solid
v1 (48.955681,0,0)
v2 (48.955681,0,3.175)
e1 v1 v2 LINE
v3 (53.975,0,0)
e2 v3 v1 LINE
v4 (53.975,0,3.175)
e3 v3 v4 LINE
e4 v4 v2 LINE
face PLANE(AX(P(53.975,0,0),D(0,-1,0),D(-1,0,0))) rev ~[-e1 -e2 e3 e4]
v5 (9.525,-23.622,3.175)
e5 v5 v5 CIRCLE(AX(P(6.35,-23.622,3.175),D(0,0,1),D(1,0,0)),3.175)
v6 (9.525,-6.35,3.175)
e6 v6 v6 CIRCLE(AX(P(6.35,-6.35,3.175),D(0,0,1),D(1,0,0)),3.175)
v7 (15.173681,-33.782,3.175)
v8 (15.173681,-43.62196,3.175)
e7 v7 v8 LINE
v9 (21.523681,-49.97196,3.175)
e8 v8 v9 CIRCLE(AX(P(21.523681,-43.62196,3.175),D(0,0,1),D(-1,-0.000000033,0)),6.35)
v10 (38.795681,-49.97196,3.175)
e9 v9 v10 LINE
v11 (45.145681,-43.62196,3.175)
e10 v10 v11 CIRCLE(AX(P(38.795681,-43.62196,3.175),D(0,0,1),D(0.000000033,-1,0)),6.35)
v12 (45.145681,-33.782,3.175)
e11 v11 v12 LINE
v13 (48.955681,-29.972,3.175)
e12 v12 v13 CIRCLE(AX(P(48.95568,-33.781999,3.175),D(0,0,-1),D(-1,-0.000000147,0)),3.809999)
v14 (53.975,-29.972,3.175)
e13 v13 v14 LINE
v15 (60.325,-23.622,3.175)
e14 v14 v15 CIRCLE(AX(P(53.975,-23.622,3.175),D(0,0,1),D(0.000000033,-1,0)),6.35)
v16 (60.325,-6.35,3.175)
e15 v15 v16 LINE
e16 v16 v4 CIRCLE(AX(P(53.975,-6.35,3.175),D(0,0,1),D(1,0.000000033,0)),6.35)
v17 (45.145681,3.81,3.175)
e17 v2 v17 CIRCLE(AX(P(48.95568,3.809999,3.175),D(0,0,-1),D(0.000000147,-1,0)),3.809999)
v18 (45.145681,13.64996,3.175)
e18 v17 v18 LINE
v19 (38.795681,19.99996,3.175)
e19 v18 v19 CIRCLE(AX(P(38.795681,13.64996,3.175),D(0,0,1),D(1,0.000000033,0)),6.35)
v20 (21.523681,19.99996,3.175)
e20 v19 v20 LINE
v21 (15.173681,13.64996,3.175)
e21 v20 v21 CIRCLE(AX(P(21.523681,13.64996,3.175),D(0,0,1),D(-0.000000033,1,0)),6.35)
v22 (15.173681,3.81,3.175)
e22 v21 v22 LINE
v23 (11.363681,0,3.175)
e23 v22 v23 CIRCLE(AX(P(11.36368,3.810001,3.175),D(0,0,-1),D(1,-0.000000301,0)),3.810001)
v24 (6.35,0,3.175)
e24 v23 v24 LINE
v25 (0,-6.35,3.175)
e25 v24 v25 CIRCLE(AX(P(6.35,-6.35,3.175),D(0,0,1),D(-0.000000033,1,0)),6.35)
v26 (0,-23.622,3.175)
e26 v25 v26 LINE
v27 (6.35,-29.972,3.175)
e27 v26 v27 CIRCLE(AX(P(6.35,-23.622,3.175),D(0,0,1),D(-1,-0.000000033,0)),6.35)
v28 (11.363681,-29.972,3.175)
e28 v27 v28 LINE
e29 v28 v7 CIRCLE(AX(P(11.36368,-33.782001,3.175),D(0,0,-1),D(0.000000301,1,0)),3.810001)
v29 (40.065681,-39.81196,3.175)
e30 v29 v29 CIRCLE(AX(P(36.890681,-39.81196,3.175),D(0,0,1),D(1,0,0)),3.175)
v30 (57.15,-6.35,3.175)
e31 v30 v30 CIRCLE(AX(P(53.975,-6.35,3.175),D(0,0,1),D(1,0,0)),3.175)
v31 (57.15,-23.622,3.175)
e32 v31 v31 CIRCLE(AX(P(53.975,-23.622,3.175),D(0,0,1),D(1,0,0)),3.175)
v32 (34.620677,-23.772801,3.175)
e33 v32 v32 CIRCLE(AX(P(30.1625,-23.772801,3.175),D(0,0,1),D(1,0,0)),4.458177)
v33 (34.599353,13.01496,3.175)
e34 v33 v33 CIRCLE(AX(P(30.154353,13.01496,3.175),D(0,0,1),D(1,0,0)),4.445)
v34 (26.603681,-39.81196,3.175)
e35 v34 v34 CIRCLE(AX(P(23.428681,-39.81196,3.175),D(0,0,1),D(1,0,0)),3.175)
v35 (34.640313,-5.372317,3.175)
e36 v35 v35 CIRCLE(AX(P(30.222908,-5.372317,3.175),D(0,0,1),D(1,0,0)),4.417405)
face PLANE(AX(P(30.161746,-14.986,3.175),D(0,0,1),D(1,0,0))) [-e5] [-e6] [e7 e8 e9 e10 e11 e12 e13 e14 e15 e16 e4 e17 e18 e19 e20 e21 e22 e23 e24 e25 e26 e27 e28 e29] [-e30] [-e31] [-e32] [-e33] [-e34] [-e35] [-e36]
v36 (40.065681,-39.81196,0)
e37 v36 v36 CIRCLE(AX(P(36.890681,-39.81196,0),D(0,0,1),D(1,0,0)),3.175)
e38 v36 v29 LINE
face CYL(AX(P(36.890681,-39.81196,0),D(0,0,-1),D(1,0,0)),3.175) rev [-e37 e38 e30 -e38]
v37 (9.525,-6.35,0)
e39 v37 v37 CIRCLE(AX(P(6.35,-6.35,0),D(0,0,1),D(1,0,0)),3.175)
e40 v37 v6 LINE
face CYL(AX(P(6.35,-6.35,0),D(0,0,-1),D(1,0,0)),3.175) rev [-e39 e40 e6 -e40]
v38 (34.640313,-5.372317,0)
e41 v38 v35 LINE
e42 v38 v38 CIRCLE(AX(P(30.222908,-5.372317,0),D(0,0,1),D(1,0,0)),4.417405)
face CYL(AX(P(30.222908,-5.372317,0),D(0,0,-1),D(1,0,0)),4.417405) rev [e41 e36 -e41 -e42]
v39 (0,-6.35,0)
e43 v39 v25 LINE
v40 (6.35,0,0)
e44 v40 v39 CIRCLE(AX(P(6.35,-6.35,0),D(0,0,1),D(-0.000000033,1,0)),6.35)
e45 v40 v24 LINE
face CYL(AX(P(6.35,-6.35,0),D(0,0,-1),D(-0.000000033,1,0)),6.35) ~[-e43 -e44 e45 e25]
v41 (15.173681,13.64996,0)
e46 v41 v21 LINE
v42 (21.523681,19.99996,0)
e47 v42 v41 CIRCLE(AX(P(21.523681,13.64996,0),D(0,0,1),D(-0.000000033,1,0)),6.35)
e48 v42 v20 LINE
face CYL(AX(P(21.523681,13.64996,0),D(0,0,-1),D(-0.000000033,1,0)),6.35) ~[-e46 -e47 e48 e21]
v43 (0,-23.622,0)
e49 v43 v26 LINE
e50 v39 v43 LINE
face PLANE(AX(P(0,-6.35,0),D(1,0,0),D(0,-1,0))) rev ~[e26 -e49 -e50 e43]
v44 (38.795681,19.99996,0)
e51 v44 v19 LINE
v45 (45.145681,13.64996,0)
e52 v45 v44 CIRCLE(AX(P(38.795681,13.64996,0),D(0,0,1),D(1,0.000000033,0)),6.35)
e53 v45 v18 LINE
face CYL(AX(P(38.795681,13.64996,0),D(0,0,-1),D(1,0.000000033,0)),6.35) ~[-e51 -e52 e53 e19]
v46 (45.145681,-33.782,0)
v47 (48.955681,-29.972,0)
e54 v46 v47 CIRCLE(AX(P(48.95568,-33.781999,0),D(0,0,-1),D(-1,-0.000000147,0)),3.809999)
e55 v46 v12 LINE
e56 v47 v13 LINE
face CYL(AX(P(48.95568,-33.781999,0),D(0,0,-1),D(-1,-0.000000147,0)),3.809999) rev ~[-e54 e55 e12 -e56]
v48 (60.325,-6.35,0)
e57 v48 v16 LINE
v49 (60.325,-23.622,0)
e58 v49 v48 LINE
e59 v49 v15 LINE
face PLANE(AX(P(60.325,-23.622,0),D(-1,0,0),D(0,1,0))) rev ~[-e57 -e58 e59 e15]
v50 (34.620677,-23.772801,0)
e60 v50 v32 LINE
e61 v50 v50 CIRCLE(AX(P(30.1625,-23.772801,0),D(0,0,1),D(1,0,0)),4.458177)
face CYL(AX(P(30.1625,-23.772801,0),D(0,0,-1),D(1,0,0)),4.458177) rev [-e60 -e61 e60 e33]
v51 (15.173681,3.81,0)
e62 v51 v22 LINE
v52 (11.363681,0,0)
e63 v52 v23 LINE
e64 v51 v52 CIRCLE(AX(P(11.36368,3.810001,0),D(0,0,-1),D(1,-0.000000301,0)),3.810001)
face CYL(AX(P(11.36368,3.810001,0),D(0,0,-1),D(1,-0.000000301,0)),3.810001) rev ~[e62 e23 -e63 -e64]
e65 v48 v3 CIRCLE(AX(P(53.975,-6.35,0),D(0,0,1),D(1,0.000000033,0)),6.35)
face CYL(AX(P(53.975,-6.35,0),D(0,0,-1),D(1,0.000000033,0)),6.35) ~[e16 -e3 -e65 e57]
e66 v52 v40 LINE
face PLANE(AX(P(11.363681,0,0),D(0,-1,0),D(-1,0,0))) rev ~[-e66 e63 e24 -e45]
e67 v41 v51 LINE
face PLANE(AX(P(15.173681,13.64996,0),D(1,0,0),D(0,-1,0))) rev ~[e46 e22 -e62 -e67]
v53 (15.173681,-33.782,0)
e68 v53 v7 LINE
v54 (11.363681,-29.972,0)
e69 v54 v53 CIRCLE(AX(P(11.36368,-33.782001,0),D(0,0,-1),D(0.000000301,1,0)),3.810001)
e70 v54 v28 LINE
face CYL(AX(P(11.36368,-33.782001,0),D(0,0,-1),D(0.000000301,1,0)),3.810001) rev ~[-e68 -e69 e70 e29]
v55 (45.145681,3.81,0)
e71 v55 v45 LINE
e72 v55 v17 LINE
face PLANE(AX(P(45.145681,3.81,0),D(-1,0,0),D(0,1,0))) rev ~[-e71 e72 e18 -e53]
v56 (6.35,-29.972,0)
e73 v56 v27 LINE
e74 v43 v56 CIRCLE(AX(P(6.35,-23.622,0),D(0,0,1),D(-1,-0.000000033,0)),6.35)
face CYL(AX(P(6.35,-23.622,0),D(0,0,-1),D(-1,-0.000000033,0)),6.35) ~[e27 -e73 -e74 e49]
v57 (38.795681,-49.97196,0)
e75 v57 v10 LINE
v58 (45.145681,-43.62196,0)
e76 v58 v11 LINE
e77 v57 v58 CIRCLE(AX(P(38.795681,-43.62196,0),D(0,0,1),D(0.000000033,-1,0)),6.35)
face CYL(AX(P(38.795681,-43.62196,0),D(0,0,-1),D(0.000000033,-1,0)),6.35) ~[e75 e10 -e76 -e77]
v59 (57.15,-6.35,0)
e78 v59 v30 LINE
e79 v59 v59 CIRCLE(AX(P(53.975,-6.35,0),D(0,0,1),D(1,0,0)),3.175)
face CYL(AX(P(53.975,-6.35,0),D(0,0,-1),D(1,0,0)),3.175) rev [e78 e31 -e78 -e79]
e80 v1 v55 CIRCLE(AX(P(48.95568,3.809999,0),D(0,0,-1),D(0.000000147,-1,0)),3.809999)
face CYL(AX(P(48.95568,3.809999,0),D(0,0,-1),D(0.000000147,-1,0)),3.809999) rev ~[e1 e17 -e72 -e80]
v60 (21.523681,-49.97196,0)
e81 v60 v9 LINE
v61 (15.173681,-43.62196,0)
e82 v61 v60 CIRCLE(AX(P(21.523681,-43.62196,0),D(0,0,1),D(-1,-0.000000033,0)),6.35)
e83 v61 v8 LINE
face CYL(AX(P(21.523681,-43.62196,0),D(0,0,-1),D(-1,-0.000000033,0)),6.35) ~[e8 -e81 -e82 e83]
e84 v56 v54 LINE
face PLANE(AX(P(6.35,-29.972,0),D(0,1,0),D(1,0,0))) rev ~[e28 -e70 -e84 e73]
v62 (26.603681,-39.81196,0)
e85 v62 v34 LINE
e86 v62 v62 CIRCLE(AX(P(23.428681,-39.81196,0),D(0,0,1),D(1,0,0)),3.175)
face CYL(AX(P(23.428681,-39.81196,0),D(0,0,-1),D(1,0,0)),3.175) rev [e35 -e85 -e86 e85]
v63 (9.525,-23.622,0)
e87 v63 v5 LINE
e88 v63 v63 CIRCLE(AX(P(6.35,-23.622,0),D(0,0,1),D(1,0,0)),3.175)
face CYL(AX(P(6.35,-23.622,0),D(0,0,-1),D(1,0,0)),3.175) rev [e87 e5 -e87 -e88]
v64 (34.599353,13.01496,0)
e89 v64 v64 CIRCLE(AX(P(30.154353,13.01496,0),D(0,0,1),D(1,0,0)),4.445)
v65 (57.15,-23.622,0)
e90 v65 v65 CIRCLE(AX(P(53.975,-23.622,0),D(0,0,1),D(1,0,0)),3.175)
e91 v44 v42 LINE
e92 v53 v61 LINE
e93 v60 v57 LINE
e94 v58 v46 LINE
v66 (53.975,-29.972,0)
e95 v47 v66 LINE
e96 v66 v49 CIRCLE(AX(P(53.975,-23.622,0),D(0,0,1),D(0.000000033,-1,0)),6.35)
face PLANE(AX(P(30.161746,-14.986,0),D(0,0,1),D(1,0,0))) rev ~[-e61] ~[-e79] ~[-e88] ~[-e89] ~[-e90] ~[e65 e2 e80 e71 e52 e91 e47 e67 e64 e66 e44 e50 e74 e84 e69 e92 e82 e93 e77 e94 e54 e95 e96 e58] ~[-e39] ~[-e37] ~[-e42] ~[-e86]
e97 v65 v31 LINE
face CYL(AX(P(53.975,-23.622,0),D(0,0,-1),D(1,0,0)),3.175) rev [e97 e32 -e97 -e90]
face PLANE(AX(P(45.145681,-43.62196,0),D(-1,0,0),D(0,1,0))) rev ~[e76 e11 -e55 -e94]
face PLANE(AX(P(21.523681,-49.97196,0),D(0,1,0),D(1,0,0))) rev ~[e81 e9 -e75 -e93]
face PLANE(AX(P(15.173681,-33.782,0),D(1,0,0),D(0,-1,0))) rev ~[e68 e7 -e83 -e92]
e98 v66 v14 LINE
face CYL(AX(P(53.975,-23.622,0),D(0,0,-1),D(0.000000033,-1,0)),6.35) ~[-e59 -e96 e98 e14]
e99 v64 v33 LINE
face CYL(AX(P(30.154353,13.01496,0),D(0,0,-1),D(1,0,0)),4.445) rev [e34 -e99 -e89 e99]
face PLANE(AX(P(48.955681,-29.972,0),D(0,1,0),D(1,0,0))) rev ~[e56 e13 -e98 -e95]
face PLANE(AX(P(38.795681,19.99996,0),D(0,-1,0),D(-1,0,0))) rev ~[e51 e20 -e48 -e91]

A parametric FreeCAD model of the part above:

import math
import FreeCAD as App
import Part
import Sketcher
Q = App.Units.Quantity

doc = App.newDocument("Part")
body = doc.addObject("PartDesign::Body", "Body")

sketch1 = body.newObject("Sketcher::SketchObject", "Sketch")
sketch1.AttachmentSupport = (doc.getObject("XY_Plane"), [""])
sketch1.MapMode = "FlatFace"
sketch1.addGeometry([
    Part.LineSegment(App.Vector(11.4, 0, 0), App.Vector(6.3, 0, 0)),
    Part.ArcOfCircle(Part.Circle(App.Vector(6.4, -6.4, 0), App.Vector(0, 0, 1), 6.4), math.radians(90), math.radians(180)),
    Part.LineSegment(App.Vector(0, -6.3, 0), App.Vector(0, -23.6, 0)),
    Part.ArcOfCircle(Part.Circle(App.Vector(6.4, -23.6, 0), App.Vector(0, 0, 1), 6.4), math.radians(-180), math.radians(-90)),
    Part.LineSegment(App.Vector(6.3, -30, 0), App.Vector(11.4, -30, 0)),
    Part.ArcOfCircle(Part.Circle(App.Vector(11.4, -33.8, 0), App.Vector(0, 0, 1), 3.8), math.radians(0), math.radians(90)),
    Part.LineSegment(App.Vector(15.2, -33.8, 0), App.Vector(15.2, -43.6, 0)),
    Part.ArcOfCircle(Part.Circle(App.Vector(21.5, -43.6, 0), App.Vector(0, 0, 1), 6.4), math.radians(-180), math.radians(-90)),
    Part.LineSegment(App.Vector(21.5, -50, 0), App.Vector(38.8, -50, 0)),
    Part.ArcOfCircle(Part.Circle(App.Vector(38.8, -43.6, 0), App.Vector(0, 0, 1), 6.4), math.radians(-90), math.radians(0)),
    Part.LineSegment(App.Vector(45.1, -43.6, 0), App.Vector(45.1, -33.8, 0)),
    Part.ArcOfCircle(Part.Circle(App.Vector(49, -33.8, 0), App.Vector(0, 0, 1), 3.8), math.radians(90), math.radians(180)),
    Part.LineSegment(App.Vector(49, -30, 0), App.Vector(54, -30, 0)),
    Part.ArcOfCircle(Part.Circle(App.Vector(54, -23.6, 0), App.Vector(0, 0, 1), 6.4), math.radians(-90), math.radians(0)),
    Part.LineSegment(App.Vector(60.3, -23.6, 0), App.Vector(60.3, -6.3, 0)),
    Part.ArcOfCircle(Part.Circle(App.Vector(54, -6.4, 0), App.Vector(0, 0, 1), 6.4), math.radians(0), math.radians(90)),
    Part.LineSegment(App.Vector(54, 0, 0), App.Vector(49, 0, 0)),
    Part.ArcOfCircle(Part.Circle(App.Vector(49, 3.8, 0), App.Vector(0, 0, 1), 3.8), math.radians(180), math.radians(270)),
    Part.LineSegment(App.Vector(45.1, 3.8, 0), App.Vector(45.1, 13.6, 0)),
    Part.ArcOfCircle(Part.Circle(App.Vector(38.8, 13.6, 0), App.Vector(0, 0, 1), 6.4), math.radians(0), math.radians(90)),
    Part.LineSegment(App.Vector(38.8, 20, 0), App.Vector(21.5, 20, 0)),
    Part.ArcOfCircle(Part.Circle(App.Vector(21.5, 13.6, 0), App.Vector(0, 0, 1), 6.4), math.radians(90), math.radians(180)),
    Part.LineSegment(App.Vector(15.2, 13.6, 0), App.Vector(15.2, 3.8, 0)),
    Part.ArcOfCircle(Part.Circle(App.Vector(11.4, 3.8, 0), App.Vector(0, 0, 1), 3.8), math.radians(-90), math.radians(0)),
    Part.Circle(App.Vector(23.4, -39.8, 0), App.Vector(0, 0, 1), 3.2),
    Part.Circle(App.Vector(6.3, -23.6, 0), App.Vector(0, 0, 1), 3.2),
    Part.Circle(App.Vector(36.9, -39.8, 0), App.Vector(0, 0, 1), 3.2),
    Part.Circle(App.Vector(30.2, -23.8, 0), App.Vector(0, 0, 1), 4.5),
    Part.Circle(App.Vector(54, -23.6, 0), App.Vector(0, 0, 1), 3.2),
    Part.Circle(App.Vector(6.3, -6.3, 0), App.Vector(0, 0, 1), 3.2),
    Part.Circle(App.Vector(30.2, 13, 0), App.Vector(0, 0, 1), 4.4),
    Part.Circle(App.Vector(30.2, -5.4, 0), App.Vector(0, 0, 1), 4.4),
    Part.Circle(App.Vector(54, -6.3, 0), App.Vector(0, 0, 1), 3.2),
], False)
sketch1.addConstraint([
    Sketcher.Constraint("Tangent", 0, 2, 1, 1),
    Sketcher.Constraint("Tangent", 1, 2, 2, 1),
    Sketcher.Constraint("Tangent", 2, 2, 3, 1),
    Sketcher.Constraint("Tangent", 3, 2, 4, 1),
    Sketcher.Constraint("Tangent", 4, 2, 5, 2),
    Sketcher.Constraint("Tangent", 5, 1, 6, 1),
    Sketcher.Constraint("Tangent", 6, 2, 7, 1),
    Sketcher.Constraint("Tangent", 7, 2, 8, 1),
    Sketcher.Constraint("Tangent", 8, 2, 9, 1),
    Sketcher.Constraint("Tangent", 9, 2, 10, 1),
    Sketcher.Constraint("Tangent", 10, 2, 11, 2),
    Sketcher.Constraint("Tangent", 11, 1, 12, 1),
    Sketcher.Constraint("Tangent", 12, 2, 13, 1),
    Sketcher.Constraint("Tangent", 13, 2, 14, 1),
    Sketcher.Constraint("Tangent", 14, 2, 15, 1),
    Sketcher.Constraint("Tangent", 15, 2, 16, 1),
    Sketcher.Constraint("Tangent", 16, 2, 17, 2),
    Sketcher.Constraint("Tangent", 17, 1, 18, 1),
    Sketcher.Constraint("Tangent", 18, 2, 19, 1),
    Sketcher.Constraint("Tangent", 19, 2, 20, 1),
    Sketcher.Constraint("Tangent", 20, 2, 21, 1),
    Sketcher.Constraint("Tangent", 21, 2, 22, 1),
    Sketcher.Constraint("Tangent", 22, 2, 23, 2),
    Sketcher.Constraint("Tangent", 23, 1, 0, 1),
    Sketcher.Constraint("Horizontal", 0),
    Sketcher.Constraint("Vertical", 2),
    Sketcher.Constraint("Horizontal", 4),
    Sketcher.Constraint("Vertical", 6),
    Sketcher.Constraint("Horizontal", 8),
    Sketcher.Constraint("Vertical", 10),
    Sketcher.Constraint("Horizontal", 12),
    Sketcher.Constraint("Vertical", 14),
    Sketcher.Constraint("Horizontal", 16),
    Sketcher.Constraint("Vertical", 18),
    Sketcher.Constraint("Horizontal", 20),
    Sketcher.Constraint("Vertical", 22),
    Sketcher.Constraint("Coincident", 25, 3, 3, 3),
    Sketcher.Constraint("Coincident", 28, 3, 13, 3),
    Sketcher.Constraint("Coincident", 29, 3, 1, 3),
    Sketcher.Constraint("Coincident", 32, 3, 15, 3),
    Sketcher.Constraint("Equal", 1, 3),
    Sketcher.Constraint("Equal", 3, 7),
    Sketcher.Constraint("Equal", 7, 9),
    Sketcher.Constraint("Equal", 5, 11),
    Sketcher.Constraint("Equal", 9, 13),
    Sketcher.Constraint("Equal", 13, 15),
    Sketcher.Constraint("Equal", 11, 17),
    Sketcher.Constraint("Equal", 15, 19),
    Sketcher.Constraint("Equal", 19, 21),
    Sketcher.Constraint("Equal", 17, 23),
    Sketcher.Constraint("Equal", 24, 25),
    Sketcher.Constraint("Equal", 25, 26),
    Sketcher.Constraint("Equal", 26, 28),
    Sketcher.Constraint("Equal", 28, 29),
    Sketcher.Constraint("Equal", 29, 32),
    Sketcher.Constraint("PointOnObject", 0, 2, -1),
    Sketcher.Constraint("PointOnObject", 1, 2, -2),
    Sketcher.Constraint("PointOnObject", 15, 2, -1),
    Sketcher.Constraint("Horizontal", 5, 3, 11, 3),
    Sketcher.Constraint("Horizontal", 24, 3, 26, 3),
    Sketcher.Constraint("Vertical", 11, 3, 17, 3),
    Sketcher.Constraint("Vertical", 7, 3, 21, 3),
    Sketcher.Constraint("Equal", 20, 2),
    Sketcher.Constraint("Equal", 10, 18),
    Sketcher.Constraint("Diameter", 24, Q("0.25 in")),
    Sketcher.Constraint("Diameter", 30, Q("0.35 in")),
    Sketcher.Constraint("Radius", 1, Q("0.25 in")),
    Sketcher.Constraint("Radius", 5, Q("0.15 in")),
    Sketcher.Constraint("DistanceX", 8, 1, 8, 2, Q("0.68 in")),
    Sketcher.Constraint("DistanceY", 7, 2, 24, 3, Q("0.4 in")),
    Sketcher.Constraint("DistanceX", 24, 3, 26, 3, Q("0.53 in")),
    Sketcher.Constraint("Diameter", 31, Q("8.83481 mm")),
    Sketcher.Constraint("DistanceY", 6, 2, 6, 1, Q("0.3874 in")),
    Sketcher.Constraint("DistanceX", -1, 1, 13, 3, Q("2.125 in")),
    Sketcher.Constraint("DistanceX", -1, 1, 27, 3, Q("1.1875 in")),
    Sketcher.Constraint("DistanceX", 7, 3, 24, 3, Q("0.075 in")),
    Sketcher.Constraint("DistanceY", 30, 3, 21, 3, Q("0.025 in")),
    Sketcher.Constraint("Diameter", 27, Q("8.916354 mm")),
    Sketcher.Constraint("DistanceX", 0, 2, 0, 1, Q("5.013681 mm")),
    Sketcher.Constraint("DistanceY", 27, 3, -1, 1, Q("23.772801 mm")),
    Sketcher.Constraint("DistanceX", -1, 1, 31, 3, Q("30.222908 mm")),
    Sketcher.Constraint("DistanceX", 21, 3, 30, 3, Q("8.630672 mm")),
    Sketcher.Constraint("DistanceY", 31, 3, -1, 1, Q("5.372317 mm")),
])
pad1 = body.newObject("PartDesign::Pad", "Pad")
pad1.Profile = sketch1
pad1.Length = Q("0.125 in")

doc.recompute()
